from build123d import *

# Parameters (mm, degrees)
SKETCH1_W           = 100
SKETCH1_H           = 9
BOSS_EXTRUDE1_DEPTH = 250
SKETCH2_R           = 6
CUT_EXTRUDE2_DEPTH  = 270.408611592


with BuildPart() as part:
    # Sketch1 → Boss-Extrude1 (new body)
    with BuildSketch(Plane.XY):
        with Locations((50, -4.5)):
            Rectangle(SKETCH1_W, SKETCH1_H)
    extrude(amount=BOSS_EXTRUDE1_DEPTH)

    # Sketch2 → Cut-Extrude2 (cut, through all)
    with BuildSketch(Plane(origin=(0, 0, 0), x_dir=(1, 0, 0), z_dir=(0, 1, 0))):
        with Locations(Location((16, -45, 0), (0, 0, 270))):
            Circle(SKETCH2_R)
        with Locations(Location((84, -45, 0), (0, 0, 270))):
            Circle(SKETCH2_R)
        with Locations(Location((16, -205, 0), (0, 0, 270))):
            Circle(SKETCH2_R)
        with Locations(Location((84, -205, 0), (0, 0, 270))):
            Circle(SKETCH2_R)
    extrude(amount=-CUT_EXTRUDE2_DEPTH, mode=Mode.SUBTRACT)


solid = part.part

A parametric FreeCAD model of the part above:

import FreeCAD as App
import Part
import Sketcher
from FreeCAD import Vector

doc = App.newDocument("Part")
params = doc.addObject("Spreadsheet::Sheet", "Params")
for row, (alias, value) in enumerate([
    ("sketch1_width", "100 mm"),
    ("sketch1_height", "9 mm"),
    ("pad1_length", "250 mm"),
    ("sketch2_diameter", "12 mm"),
], start=1):
    params.set(f"A{row}", alias)
    params.set(f"B{row}", "=" + value)
    params.setAlias(f"B{row}", alias)

body = doc.addObject("PartDesign::Body", "Body")

# Sketch on XY plane
sketch1 = doc.addObject("Sketcher::SketchObject", "Sketch")
body.addObject(sketch1)
sketch1.AttachmentSupport = (doc.XY_Plane, [""])
sketch1.MapMode = "FlatFace"
sketch1.addGeometry([
    Part.LineSegment(Vector(0, 0, 0), Vector(0, -9, 0)),
    Part.LineSegment(Vector(0, -9, 0), Vector(100, -9, 0)),
    Part.LineSegment(Vector(100, -9, 0), Vector(100, 0, 0)),
    Part.LineSegment(Vector(100, 0, 0), Vector(0, 0, 0)),
], False)
sketch1.addConstraint([
    Sketcher.Constraint("Coincident", 0, 2, 1, 1),
    Sketcher.Constraint("Coincident", 1, 2, 2, 1),
    Sketcher.Constraint("Coincident", 2, 2, 3, 1),
    Sketcher.Constraint("Coincident", 3, 2, 0, 1),
    Sketcher.Constraint("Vertical", 0),
    Sketcher.Constraint("Horizontal", 1),
    Sketcher.Constraint("Vertical", 2),
    Sketcher.Constraint("Horizontal", 3),
    Sketcher.Constraint("Coincident", 3, 2, -1, 1),
    Sketcher.Constraint("DistanceX", 1, 1, 1, 2, 100.0),
    Sketcher.Constraint("DistanceY", 0, 2, 0, 1, 9.0),
])
sketch1.setExpression("Constraints[9]", "Params.sketch1_width")
sketch1.setExpression("Constraints[10]", "Params.sketch1_height")
pad1 = doc.addObject("PartDesign::Pad", "Pad")
body.addObject(pad1)
pad1.Profile = sketch1
pad1.setExpression("Length", "Params.pad1_length")

# Sketch on XZ plane
sketch2 = doc.addObject("Sketcher::SketchObject", "Sketch001")
body.addObject(sketch2)
sketch2.AttachmentSupport = (doc.XZ_Plane, [""])
sketch2.MapMode = "FlatFace"
sketch2.addGeometry([
    Part.Circle(Vector(16, 45, 0), Vector(0, 0, 1), 6),
    Part.Circle(Vector(84, 45, 0), Vector(0, 0, 1), 6),
    Part.Circle(Vector(16, 205, 0), Vector(0, 0, 1), 6),
    Part.Circle(Vector(84, 205, 0), Vector(0, 0, 1), 6),
], False)
sketch2.addConstraint([
    Sketcher.Constraint("Equal", 0, 1),
    Sketcher.Constraint("Equal", 1, 2),
    Sketcher.Constraint("Equal", 2, 3),
    Sketcher.Constraint("Horizontal", 0, 3, 1, 3),
    Sketcher.Constraint("Horizontal", 2, 3, 3, 3),
    Sketcher.Constraint("Vertical", 0, 3, 2, 3),
    Sketcher.Constraint("Vertical", 1, 3, 3, 3),
    Sketcher.Constraint("Diameter", 0, 12.0),
    Sketcher.Constraint("DistanceX", -1, 1, 0, 3, 16.0),
    Sketcher.Constraint("DistanceY", -1, 1, 0, 3, 45.0),
    Sketcher.Constraint("DistanceX", -1, 1, 1, 3, 84.0),
    Sketcher.Constraint("DistanceY", -1, 1, 2, 3, 205.0),
])
sketch2.setExpression("Constraints[7]", "Params.sketch2_diameter")
pocket1 = doc.addObject("PartDesign::Pocket", "Pocket")
body.addObject(pocket1)
pocket1.Profile = sketch2
pocket1.Type = "ThroughAll"
pocket1.Reversed = True

doc.recompute()
